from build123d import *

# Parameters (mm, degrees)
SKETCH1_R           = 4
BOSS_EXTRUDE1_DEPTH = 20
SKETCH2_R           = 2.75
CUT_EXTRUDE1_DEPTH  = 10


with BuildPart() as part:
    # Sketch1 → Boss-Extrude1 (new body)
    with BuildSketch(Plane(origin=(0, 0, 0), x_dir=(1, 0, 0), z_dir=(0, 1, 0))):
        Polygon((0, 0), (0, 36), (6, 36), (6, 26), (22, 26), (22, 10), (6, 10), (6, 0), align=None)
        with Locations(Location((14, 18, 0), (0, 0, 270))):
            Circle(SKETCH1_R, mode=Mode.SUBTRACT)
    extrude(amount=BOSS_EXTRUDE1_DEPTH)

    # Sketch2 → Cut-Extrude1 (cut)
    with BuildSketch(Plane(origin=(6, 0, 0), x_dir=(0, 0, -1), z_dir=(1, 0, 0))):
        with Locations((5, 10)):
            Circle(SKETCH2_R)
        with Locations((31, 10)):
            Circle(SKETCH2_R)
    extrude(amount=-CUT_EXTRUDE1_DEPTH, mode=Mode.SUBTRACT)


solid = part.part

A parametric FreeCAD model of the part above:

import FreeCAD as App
import Part
import Sketcher

V = App.Vector
Q = App.Units.Quantity


def add_polygon(sketch, points):
    """Adds a closed chain of lines whose ends are joined by coincident constraints."""
    first, n = sketch.GeometryCount, len(points)
    for a, b in zip(points, points[1:] + points[:1]):
        sketch.addGeometry(Part.LineSegment(App.Vector(*a, 0), App.Vector(*b, 0)), False)
    for i in range(n):
        sketch.addConstraint(Sketcher.Constraint("Coincident", first + i, 2, first + (i + 1) % n, 1))

doc = App.newDocument("Part")
body = doc.addObject("PartDesign::Body", "Body")

# Sketch on XZ plane
sketch1 = body.newObject("Sketcher::SketchObject", "Sketch")
sketch1.AttachmentSupport = (doc.getObject("XZ_Plane"), [""])
sketch1.MapMode = "FlatFace"
add_polygon(sketch1, [(0, -36), (0, 0), (6, 0), (6, -10), (22, -10), (22, -26), (6, -26), (6, -36)])  # lines 0-7
sketch1.addGeometry(Part.Circle(V(14, -18, 0), V(0, 0, 1), 4), False)  # 8
sketch1.addConstraint([
    Sketcher.Constraint("Vertical", 0),
    Sketcher.Constraint("Horizontal", 1),
    Sketcher.Constraint("Vertical", 2),
    Sketcher.Constraint("Horizontal", 3),
    Sketcher.Constraint("Vertical", 4),
    Sketcher.Constraint("Horizontal", 5),
    Sketcher.Constraint("Vertical", 6),
    Sketcher.Constraint("Horizontal", 7),
    Sketcher.Constraint("Coincident", 0, 2, -1, 1),
    Sketcher.Constraint("Vertical", 2, 2, 5, 2),
    Sketcher.Constraint("Equal", 5, 4),
    Sketcher.Constraint("Equal", 2, 6),
    Sketcher.Constraint("Diameter", 8, Q("8 mm")),
    Sketcher.Constraint("DistanceX", 1, 1, 1, 2, Q("6 mm")),
    Sketcher.Constraint("DistanceX", 3, 1, 3, 2, Q("16 mm")),
    Sketcher.Constraint("DistanceY", 0, 1, 0, 2, Q("36 mm")),
    Sketcher.Constraint("DistanceX", -1, 1, 8, 3, Q("14 mm")),
    Sketcher.Constraint("DistanceY", 8, 3, -1, 1, Q("18 mm")),
])
pad1 = body.newObject("PartDesign::Pad", "Pad")
pad1.Profile = sketch1
pad1.Length = 20
pad1.Reversed = True

# Sketch on YZ plane
sketch2 = body.newObject("Sketcher::SketchObject", "Sketch001")
sketch2.AttachmentSupport = (doc.getObject("YZ_Plane"), [""])
sketch2.MapMode = "FlatFace"
sketch2.AttachmentOffset = App.Placement(V(0, 0, 6), App.Rotation())
sketch2.addGeometry([
    Part.Circle(V(10, -5, 0), V(0, 0, 1), 2.8),
    Part.Circle(V(10, -31, 0), V(0, 0, 1), 2.8),
], False)
sketch2.addConstraint([
    Sketcher.Constraint("Equal", 0, 1),
    Sketcher.Constraint("Vertical", 0, 3, 1, 3),
    Sketcher.Constraint("Diameter", 0, Q("5.5 mm")),
    Sketcher.Constraint("DistanceX", -1, 1, 0, 3, Q("10 mm")),
    Sketcher.Constraint("DistanceY", 0, 3, -1, 1, Q("5 mm")),
    Sketcher.Constraint("DistanceY", 1, 3, -1, 1, Q("31 mm")),
])
pocket1 = body.newObject("PartDesign::Pocket", "Pocket")
pocket1.Profile = sketch2
pocket1.Length = 10

doc.recompute()
